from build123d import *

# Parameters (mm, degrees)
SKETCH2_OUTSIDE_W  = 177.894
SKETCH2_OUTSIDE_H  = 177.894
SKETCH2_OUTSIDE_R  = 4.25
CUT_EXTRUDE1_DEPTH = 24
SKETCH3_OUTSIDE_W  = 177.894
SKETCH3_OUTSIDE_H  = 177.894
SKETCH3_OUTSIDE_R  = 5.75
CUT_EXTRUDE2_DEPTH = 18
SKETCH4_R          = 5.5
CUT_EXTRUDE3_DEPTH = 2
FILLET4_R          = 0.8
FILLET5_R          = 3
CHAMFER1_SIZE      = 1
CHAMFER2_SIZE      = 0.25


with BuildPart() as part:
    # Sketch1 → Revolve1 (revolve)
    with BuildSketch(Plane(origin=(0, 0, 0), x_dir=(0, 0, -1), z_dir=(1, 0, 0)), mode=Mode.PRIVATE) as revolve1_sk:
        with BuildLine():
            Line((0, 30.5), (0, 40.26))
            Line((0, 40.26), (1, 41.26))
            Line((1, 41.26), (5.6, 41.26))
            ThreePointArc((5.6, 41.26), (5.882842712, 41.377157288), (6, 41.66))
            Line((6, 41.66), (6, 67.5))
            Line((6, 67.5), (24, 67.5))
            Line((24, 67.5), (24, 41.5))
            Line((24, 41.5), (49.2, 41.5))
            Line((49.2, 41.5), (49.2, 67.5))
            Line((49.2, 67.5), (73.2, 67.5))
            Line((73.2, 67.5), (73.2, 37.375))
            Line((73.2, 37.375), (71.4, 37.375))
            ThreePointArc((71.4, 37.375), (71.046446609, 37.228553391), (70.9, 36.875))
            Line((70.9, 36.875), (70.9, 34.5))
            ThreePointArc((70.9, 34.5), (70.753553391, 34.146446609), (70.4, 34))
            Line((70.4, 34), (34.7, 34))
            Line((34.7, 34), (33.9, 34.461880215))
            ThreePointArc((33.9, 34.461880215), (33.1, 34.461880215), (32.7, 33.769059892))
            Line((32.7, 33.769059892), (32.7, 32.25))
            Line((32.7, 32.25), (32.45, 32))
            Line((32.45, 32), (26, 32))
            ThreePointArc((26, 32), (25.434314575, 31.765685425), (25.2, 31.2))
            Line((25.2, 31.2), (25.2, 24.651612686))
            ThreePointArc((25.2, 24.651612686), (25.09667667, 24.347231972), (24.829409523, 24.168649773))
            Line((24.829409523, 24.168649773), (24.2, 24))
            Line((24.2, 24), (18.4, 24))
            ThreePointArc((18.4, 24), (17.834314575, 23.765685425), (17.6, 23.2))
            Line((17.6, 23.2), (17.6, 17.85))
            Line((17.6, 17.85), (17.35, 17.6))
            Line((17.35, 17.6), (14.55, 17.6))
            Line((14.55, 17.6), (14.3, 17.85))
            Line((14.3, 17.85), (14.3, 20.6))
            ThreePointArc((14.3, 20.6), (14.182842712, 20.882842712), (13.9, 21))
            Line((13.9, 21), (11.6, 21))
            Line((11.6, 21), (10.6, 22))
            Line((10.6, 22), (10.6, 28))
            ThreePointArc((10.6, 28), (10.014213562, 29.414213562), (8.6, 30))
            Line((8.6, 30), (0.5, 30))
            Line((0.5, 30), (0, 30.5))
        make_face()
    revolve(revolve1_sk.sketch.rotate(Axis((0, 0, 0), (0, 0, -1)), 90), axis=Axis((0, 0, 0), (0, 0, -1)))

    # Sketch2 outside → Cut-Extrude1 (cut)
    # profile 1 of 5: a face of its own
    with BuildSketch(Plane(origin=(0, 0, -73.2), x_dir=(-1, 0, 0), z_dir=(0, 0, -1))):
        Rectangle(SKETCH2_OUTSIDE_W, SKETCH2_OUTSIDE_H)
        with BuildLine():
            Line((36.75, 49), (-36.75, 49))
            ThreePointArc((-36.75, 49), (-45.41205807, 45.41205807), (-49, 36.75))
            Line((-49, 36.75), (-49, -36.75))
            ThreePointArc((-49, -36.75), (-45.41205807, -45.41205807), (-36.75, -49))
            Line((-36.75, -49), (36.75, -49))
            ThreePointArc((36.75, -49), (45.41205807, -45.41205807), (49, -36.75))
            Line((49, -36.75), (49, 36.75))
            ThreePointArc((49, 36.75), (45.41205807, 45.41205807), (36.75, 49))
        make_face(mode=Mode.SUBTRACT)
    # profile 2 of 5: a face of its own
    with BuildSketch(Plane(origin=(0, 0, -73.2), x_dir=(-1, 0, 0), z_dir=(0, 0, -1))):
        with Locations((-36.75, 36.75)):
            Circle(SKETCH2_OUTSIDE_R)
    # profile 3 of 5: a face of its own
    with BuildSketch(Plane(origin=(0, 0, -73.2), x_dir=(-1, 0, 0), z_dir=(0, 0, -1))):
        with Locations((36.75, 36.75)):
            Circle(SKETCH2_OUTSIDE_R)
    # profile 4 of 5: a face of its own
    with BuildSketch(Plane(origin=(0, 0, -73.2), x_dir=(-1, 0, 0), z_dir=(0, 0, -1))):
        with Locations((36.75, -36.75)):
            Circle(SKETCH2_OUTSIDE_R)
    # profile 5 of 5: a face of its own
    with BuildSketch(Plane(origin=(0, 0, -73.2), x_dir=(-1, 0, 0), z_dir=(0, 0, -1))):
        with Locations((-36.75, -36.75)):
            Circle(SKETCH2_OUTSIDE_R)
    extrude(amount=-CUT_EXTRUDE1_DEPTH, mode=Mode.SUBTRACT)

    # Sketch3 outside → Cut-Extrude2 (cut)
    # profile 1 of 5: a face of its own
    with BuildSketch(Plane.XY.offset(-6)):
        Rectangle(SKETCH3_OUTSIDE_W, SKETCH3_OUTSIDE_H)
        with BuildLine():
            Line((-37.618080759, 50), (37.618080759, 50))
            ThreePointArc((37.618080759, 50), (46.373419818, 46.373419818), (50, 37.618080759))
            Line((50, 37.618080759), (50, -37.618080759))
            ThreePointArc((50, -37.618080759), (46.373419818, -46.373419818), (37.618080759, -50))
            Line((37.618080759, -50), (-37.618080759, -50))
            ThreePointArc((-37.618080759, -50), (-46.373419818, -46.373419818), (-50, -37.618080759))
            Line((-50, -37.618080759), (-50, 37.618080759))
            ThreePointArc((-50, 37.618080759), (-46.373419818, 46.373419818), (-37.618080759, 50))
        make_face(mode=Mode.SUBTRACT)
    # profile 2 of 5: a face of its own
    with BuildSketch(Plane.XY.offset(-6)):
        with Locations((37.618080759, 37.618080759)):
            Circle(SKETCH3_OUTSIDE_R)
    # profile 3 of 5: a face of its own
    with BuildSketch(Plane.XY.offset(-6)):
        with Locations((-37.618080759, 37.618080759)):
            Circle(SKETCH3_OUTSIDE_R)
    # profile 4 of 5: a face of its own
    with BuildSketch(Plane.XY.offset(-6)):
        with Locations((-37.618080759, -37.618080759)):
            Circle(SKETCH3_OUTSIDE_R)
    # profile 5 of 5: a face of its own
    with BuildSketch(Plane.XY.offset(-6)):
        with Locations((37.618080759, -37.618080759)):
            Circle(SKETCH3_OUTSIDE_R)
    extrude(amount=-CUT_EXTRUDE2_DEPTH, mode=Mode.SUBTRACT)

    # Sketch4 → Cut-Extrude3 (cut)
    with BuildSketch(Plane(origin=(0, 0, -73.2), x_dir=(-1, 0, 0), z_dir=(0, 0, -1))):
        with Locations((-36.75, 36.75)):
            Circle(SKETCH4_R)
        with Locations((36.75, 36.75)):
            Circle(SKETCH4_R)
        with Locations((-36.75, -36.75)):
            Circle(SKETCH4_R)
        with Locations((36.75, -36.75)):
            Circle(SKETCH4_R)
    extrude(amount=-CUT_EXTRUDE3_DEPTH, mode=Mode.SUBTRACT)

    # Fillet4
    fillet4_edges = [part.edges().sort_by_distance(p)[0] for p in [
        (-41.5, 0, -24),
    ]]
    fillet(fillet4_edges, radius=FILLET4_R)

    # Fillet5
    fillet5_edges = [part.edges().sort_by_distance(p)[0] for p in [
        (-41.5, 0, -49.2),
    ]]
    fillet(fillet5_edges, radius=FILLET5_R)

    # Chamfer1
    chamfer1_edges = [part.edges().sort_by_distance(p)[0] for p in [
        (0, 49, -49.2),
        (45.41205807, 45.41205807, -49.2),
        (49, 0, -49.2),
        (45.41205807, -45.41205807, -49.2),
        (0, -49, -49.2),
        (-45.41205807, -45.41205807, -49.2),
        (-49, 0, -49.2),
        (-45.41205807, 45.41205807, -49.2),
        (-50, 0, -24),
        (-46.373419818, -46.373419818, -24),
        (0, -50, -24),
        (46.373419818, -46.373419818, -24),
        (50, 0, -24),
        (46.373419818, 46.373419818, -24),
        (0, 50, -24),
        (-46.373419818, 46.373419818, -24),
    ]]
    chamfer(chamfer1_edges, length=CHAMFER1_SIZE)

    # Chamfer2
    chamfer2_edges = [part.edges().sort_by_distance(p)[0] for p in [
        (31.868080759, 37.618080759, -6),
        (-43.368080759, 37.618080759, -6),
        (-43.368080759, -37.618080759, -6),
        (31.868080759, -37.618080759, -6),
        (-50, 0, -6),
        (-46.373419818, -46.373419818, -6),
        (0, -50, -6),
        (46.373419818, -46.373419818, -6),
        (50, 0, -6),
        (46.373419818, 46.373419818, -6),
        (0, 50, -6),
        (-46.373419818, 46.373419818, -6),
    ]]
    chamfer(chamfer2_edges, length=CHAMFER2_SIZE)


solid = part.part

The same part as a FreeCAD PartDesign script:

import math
import FreeCAD as App
import Part
import Sketcher

V = App.Vector
Q = App.Units.Quantity


def edges_at(feature, points):
    """Names of the edges that pass closest to the given points."""
    edges = feature.Shape.Edges
    near = lambda p: min(range(len(edges)), key=lambda i: edges[i].distToShape(Part.Vertex(*p))[0])
    return sorted({f"Edge{near(p) + 1}" for p in points})


def add_polygon(sketch, points):
    """Adds a closed chain of lines whose ends are joined by coincident constraints."""
    first, n = sketch.GeometryCount, len(points)
    for a, b in zip(points, points[1:] + points[:1]):
        sketch.addGeometry(Part.LineSegment(App.Vector(*a, 0), App.Vector(*b, 0)), False)
    for i in range(n):
        sketch.addConstraint(Sketcher.Constraint("Coincident", first + i, 2, first + (i + 1) % n, 1))

doc = App.newDocument("Part")
body = doc.addObject("PartDesign::Body", "Body")

# Sketch on YZ plane
sketch1 = body.newObject("Sketcher::SketchObject", "Sketch")
sketch1.AttachmentSupport = (doc.getObject("YZ_Plane"), [""])
sketch1.MapMode = "FlatFace"
sketch1.addGeometry(Part.LineSegment(V(40.26, 0, 0), V(30.5, 0, 0)), False)
sketch1.addGeometry(Part.LineSegment(V(30.5, 0, 0), V(30, -0.5, 0)), False)
sketch1.addGeometry(Part.LineSegment(V(30, -0.5, 0), V(30, -8.6, 0)), False)
sketch1.addGeometry(Part.ArcOfCircle(Part.Circle(V(28, -8.6, 0), V(0, 0, 1), 2), math.radians(-90), math.radians(0)), False)
sketch1.addGeometry(Part.LineSegment(V(28, -10.6, 0), V(22, -10.6, 0)), False)
sketch1.addGeometry(Part.LineSegment(V(22, -10.6, 0), V(21, -11.6, 0)), False)
sketch1.addGeometry(Part.LineSegment(V(21, -11.6, 0), V(21, -13.9, 0)), False)
sketch1.addGeometry(Part.ArcOfCircle(Part.Circle(V(20.6, -13.9, 0), V(0, 0, 1), 0.4), math.radians(-90), math.radians(0)), False)
sketch1.addGeometry(Part.LineSegment(V(20.6, -14.3, 0), V(17.85, -14.3, 0)), False)
sketch1.addGeometry(Part.LineSegment(V(17.85, -14.3, 0), V(17.6, -14.55, 0)), False)
sketch1.addGeometry(Part.LineSegment(V(17.6, -14.55, 0), V(17.6, -17.35, 0)), False)
sketch1.addGeometry(Part.LineSegment(V(17.6, -17.35, 0), V(17.85, -17.6, 0)), False)
sketch1.addGeometry(Part.LineSegment(V(17.85, -17.6, 0), V(23.2, -17.6, 0)), False)
sketch1.addGeometry(Part.ArcOfCircle(Part.Circle(V(23.2, -18.4, 0), V(0, 0, 1), 0.8), math.radians(0), math.radians(90)), False)
sketch1.addGeometry(Part.LineSegment(V(24, -18.4, 0), V(24, -24.2, 0)), False)
sketch1.addGeometry(Part.LineSegment(V(24, -24.2, 0), V(24.16865, -24.82941, 0)), False)
sketch1.addGeometry(Part.ArcOfCircle(Part.Circle(V(24.651613, -24.7, 0), V(0, 0, 1), 0.5), math.radians(-165), math.radians(-90)), False)
sketch1.addGeometry(Part.LineSegment(V(24.651613, -25.2, 0), V(31.2, -25.2, 0)), False)
sketch1.addGeometry(Part.ArcOfCircle(Part.Circle(V(31.2, -26, 0), V(0, 0, 1), 0.8), math.radians(0), math.radians(90)), False)
sketch1.addGeometry(Part.LineSegment(V(32, -26, 0), V(32, -32.45, 0)), False)
sketch1.addGeometry(Part.LineSegment(V(32, -32.45, 0), V(32.25, -32.7, 0)), False)
sketch1.addGeometry(Part.LineSegment(V(32.25, -32.7, 0), V(33.76906, -32.7, 0)), False)
sketch1.addGeometry(Part.ArcOfCircle(Part.Circle(V(33.76906, -33.5, 0), V(0, 0, 1), 0.8), math.radians(-30), math.radians(90)), False)
sketch1.addGeometry(Part.LineSegment(V(34.46188, -33.9, 0), V(34, -34.7, 0)), False)
sketch1.addGeometry(Part.LineSegment(V(34, -34.7, 0), V(34, -70.4, 0)), False)
sketch1.addGeometry(Part.ArcOfCircle(Part.Circle(V(34.5, -70.4, 0), V(0, 0, 1), 0.5), math.radians(180), math.radians(270)), False)
sketch1.addGeometry(Part.LineSegment(V(34.5, -70.9, 0), V(36.875, -70.9, 0)), False)
sketch1.addGeometry(Part.ArcOfCircle(Part.Circle(V(36.875, -71.4, 0), V(0, 0, 1), 0.5), math.radians(0), math.radians(90)), False)
sketch1.addGeometry(Part.LineSegment(V(37.375, -71.4, 0), V(37.375, -73.2, 0)), False)
sketch1.addGeometry(Part.LineSegment(V(37.375, -73.2, 0), V(67.5, -73.2, 0)), False)
sketch1.addGeometry(Part.LineSegment(V(67.5, -73.2, 0), V(67.5, -49.2, 0)), False)
sketch1.addGeometry(Part.LineSegment(V(67.5, -49.2, 0), V(41.5, -49.2, 0)), False)
sketch1.addGeometry(Part.LineSegment(V(41.5, -49.2, 0), V(41.5, -24, 0)), False)
sketch1.addGeometry(Part.LineSegment(V(41.5, -24, 0), V(67.5, -24, 0)), False)
sketch1.addGeometry(Part.LineSegment(V(67.5, -24, 0), V(67.5, -6, 0)), False)
sketch1.addGeometry(Part.LineSegment(V(67.5, -6, 0), V(41.66, -6, 0)), False)
sketch1.addGeometry(Part.ArcOfCircle(Part.Circle(V(41.66, -5.6, 0), V(0, 0, 1), 0.4), math.radians(-180), math.radians(-90)), False)
sketch1.addGeometry(Part.LineSegment(V(41.26, -5.6, 0), V(41.26, -1, 0)), False)
sketch1.addGeometry(Part.LineSegment(V(41.26, -1, 0), V(40.26, 0, 0)), False)
sketch1.addConstraint(Sketcher.Constraint("Coincident", 0, 2, 1, 1))
sketch1.addConstraint(Sketcher.Constraint("Coincident", 1, 2, 2, 1))
sketch1.addConstraint(Sketcher.Constraint("Tangent", 2, 2, 3, 2))
sketch1.addConstraint(Sketcher.Constraint("Tangent", 3, 1, 4, 1))
sketch1.addConstraint(Sketcher.Constraint("Coincident", 4, 2, 5, 1))
sketch1.addConstraint(Sketcher.Constraint("Coincident", 5, 2, 6, 1))
sketch1.addConstraint(Sketcher.Constraint("Tangent", 6, 2, 7, 2))
sketch1.addConstraint(Sketcher.Constraint("Tangent", 7, 1, 8, 1))
sketch1.addConstraint(Sketcher.Constraint("Coincident", 8, 2, 9, 1))
sketch1.addConstraint(Sketcher.Constraint("Coincident", 9, 2, 10, 1))
sketch1.addConstraint(Sketcher.Constraint("Coincident", 10, 2, 11, 1))
sketch1.addConstraint(Sketcher.Constraint("Coincident", 11, 2, 12, 1))
sketch1.addConstraint(Sketcher.Constraint("Tangent", 12, 2, 13, 2))
sketch1.addConstraint(Sketcher.Constraint("Tangent", 13, 1, 14, 1))
sketch1.addConstraint(Sketcher.Constraint("Coincident", 14, 2, 15, 1))
sketch1.addConstraint(Sketcher.Constraint("Tangent", 15, 2, 16, 1))
sketch1.addConstraint(Sketcher.Constraint("Tangent", 16, 2, 17, 1))
sketch1.addConstraint(Sketcher.Constraint("Tangent", 17, 2, 18, 2))
sketch1.addConstraint(Sketcher.Constraint("Tangent", 18, 1, 19, 1))
sketch1.addConstraint(Sketcher.Constraint("Coincident", 19, 2, 20, 1))
sketch1.addConstraint(Sketcher.Constraint("Coincident", 20, 2, 21, 1))
sketch1.addConstraint(Sketcher.Constraint("Tangent", 21, 2, 22, 2))
sketch1.addConstraint(Sketcher.Constraint("Tangent", 22, 1, 23, 1))
sketch1.addConstraint(Sketcher.Constraint("Coincident", 23, 2, 24, 1))
sketch1.addConstraint(Sketcher.Constraint("Tangent", 24, 2, 25, 1))
sketch1.addConstraint(Sketcher.Constraint("Tangent", 25, 2, 26, 1))
sketch1.addConstraint(Sketcher.Constraint("Tangent", 26, 2, 27, 2))
sketch1.addConstraint(Sketcher.Constraint("Tangent", 27, 1, 28, 1))
sketch1.addConstraint(Sketcher.Constraint("Coincident", 28, 2, 29, 1))
sketch1.addConstraint(Sketcher.Constraint("Coincident", 29, 2, 30, 1))
sketch1.addConstraint(Sketcher.Constraint("Coincident", 30, 2, 31, 1))
sketch1.addConstraint(Sketcher.Constraint("Coincident", 31, 2, 32, 1))
sketch1.addConstraint(Sketcher.Constraint("Coincident", 32, 2, 33, 1))
sketch1.addConstraint(Sketcher.Constraint("Coincident", 33, 2, 34, 1))
sketch1.addConstraint(Sketcher.Constraint("Coincident", 34, 2, 35, 1))
sketch1.addConstraint(Sketcher.Constraint("Tangent", 35, 2, 36, 2))
sketch1.addConstraint(Sketcher.Constraint("Tangent", 36, 1, 37, 1))
sketch1.addConstraint(Sketcher.Constraint("Coincident", 37, 2, 38, 1))
sketch1.addConstraint(Sketcher.Constraint("Coincident", 38, 2, 0, 1))
sketch1.addConstraint(Sketcher.Constraint("Horizontal", 0))
sketch1.addConstraint(Sketcher.Constraint("Vertical", 2))
sketch1.addConstraint(Sketcher.Constraint("Horizontal", 4))
sketch1.addConstraint(Sketcher.Constraint("Vertical", 6))
sketch1.addConstraint(Sketcher.Constraint("Horizontal", 8))
sketch1.addConstraint(Sketcher.Constraint("Vertical", 10))
sketch1.addConstraint(Sketcher.Constraint("Horizontal", 12))
sketch1.addConstraint(Sketcher.Constraint("Vertical", 14))
sketch1.addConstraint(Sketcher.Constraint("Horizontal", 17))
sketch1.addConstraint(Sketcher.Constraint("Vertical", 19))
sketch1.addConstraint(Sketcher.Constraint("Horizontal", 21))
sketch1.addConstraint(Sketcher.Constraint("Vertical", 24))
sketch1.addConstraint(Sketcher.Constraint("Horizontal", 26))
sketch1.addConstraint(Sketcher.Constraint("Vertical", 28))
sketch1.addConstraint(Sketcher.Constraint("Horizontal", 29))
sketch1.addConstraint(Sketcher.Constraint("Vertical", 30))
sketch1.addConstraint(Sketcher.Constraint("Horizontal", 31))
sketch1.addConstraint(Sketcher.Constraint("Vertical", 32))
sketch1.addConstraint(Sketcher.Constraint("Horizontal", 33))
sketch1.addConstraint(Sketcher.Constraint("Vertical", 34))
sketch1.addConstraint(Sketcher.Constraint("Horizontal", 35))
sketch1.addConstraint(Sketcher.Constraint("Vertical", 37))
sketch1.addConstraint(Sketcher.Constraint("Equal", 13, 18))
sketch1.addConstraint(Sketcher.Constraint("Equal", 18, 22))
sketch1.addConstraint(Sketcher.Constraint("Equal", 16, 25))
sketch1.addConstraint(Sketcher.Constraint("Equal", 25, 27))
sketch1.addConstraint(Sketcher.Constraint("Equal", 7, 36))
sketch1.addConstraint(Sketcher.Constraint("PointOnObject", 0, 2, -1))
sketch1.addConstraint(Sketcher.Constraint("Parallel", 1, 5))
sketch1.addConstraint(Sketcher.Constraint("Parallel", 5, 9))
sketch1.addConstraint(Sketcher.Constraint("Perpendicular", 9, 11))
sketch1.addConstraint(Sketcher.Constraint("Parallel", 11, 20))
sketch1.addConstraint(Sketcher.Constraint("Parallel", 20, 38))
sketch1.addConstraint(Sketcher.Constraint("Vertical", 8, 2, 11, 2))
sketch1.addConstraint(Sketcher.Constraint("Vertical", 30, 2, 33, 2))
sketch1.addConstraint(Sketcher.Constraint("Equal", 9, 11))
sketch1.addConstraint(Sketcher.Constraint("Equal", 11, 20))
sketch1.addConstraint(Sketcher.Constraint("Equal", 5, 38))
sketch1.addConstraint(Sketcher.Constraint("Radius", 3, 2.0))
sketch1.addConstraint(Sketcher.Constraint("Radius", 7, 0.4))
sketch1.addConstraint(Sketcher.Constraint("Radius", 13, 0.8))
sketch1.addConstraint(Sketcher.Constraint("Radius", 16, 0.5))
sketch1.addConstraint(Sketcher.Constraint("DistanceX", 4, 2, 4, 1, 6.0))
sketch1.addConstraint(Sketcher.Constraint("DistanceX", 31, 2, 31, 1, 26.0))
sketch1.addConstraint(Sketcher.Constraint("DistanceY", 30, 1, 30, 2, 24.0))
sketch1.addConstraint(Sketcher.Constraint("DistanceY", 34, 1, 34, 2, 18.0))
sketch1.addConstraint(Sketcher.Constraint("Angle", 15, Q("-75 deg")))
sketch1.addConstraint(Sketcher.Constraint("Angle", 23, Q("-120 deg")))
sketch1.addConstraint(Sketcher.Constraint("DistanceY", 2, 2, 2, 1, 8.1))
sketch1.addConstraint(Sketcher.Constraint("DistanceY", 6, 2, 6, 1, 2.3))
sketch1.addConstraint(Sketcher.Constraint("DistanceY", 10, 2, 10, 1, 2.8))
sketch1.addConstraint(Sketcher.Constraint("DistanceY", 14, 2, 14, 1, 5.8))
sketch1.addConstraint(Sketcher.Constraint("DistanceY", 24, 2, 24, 1, 35.7))
sketch1.addConstraint(Sketcher.Constraint("DistanceY", 28, 2, 28, 1, 1.8))
sketch1.addConstraint(Sketcher.Constraint("DistanceY", 32, 1, 32, 2, 25.2))
sketch1.addConstraint(Sketcher.Constraint("DistanceY", 37, 1, 37, 2, 4.6))
sketch1.addConstraint(Sketcher.Constraint("DistanceX", -1, 1, 3, 3, 28.0))
sketch1.addConstraint(Sketcher.Constraint("DistanceY", 18, 3, -1, 1, 26.0))
sketch1.addConstraint(Sketcher.Constraint("DistanceX", -1, 1, 5, 2, 21.0))
sketch1.addConstraint(Sketcher.Constraint("DistanceX", -1, 1, 13, 1, 24.0))
sketch1.addConstraint(Sketcher.Constraint("DistanceX", -1, 1, 18, 1, 32.0))
sketch1.addConstraint(Sketcher.Constraint("DistanceX", -1, 1, 23, 2, 34.0))
sketch1.addConstraint(Sketcher.Constraint("DistanceY", 25, 3, 13, 3, 52.0))
sketch1.addConstraint(Sketcher.Constraint("DistanceY", 3, 3, 36, 3, 3.0))
sketch1.addConstraint(Sketcher.Constraint("DistanceX", 9, 2, 7, 1, 3.0))
sketch1.addConstraint(Sketcher.Constraint("DistanceY", 23, 2, 21, 2, 2.0))
sketch1.addConstraint(Sketcher.Constraint("DistanceX", 25, 2, 29, 2, 33.0))
sketch1.addConstraint(Sketcher.Constraint("DistanceX", 0, 2, 0, 1, 9.76))
sketch1.addConstraint(Sketcher.Constraint("DistanceX", 26, 1, 26, 2, 2.375))
revolution = body.newObject("PartDesign::Revolution", "Revolution")
revolution.Profile = sketch1
revolution.ReferenceAxis = (sketch1, ["V_Axis"])
revolution.Angle = 360

# Sketch on XY plane
sketch2 = body.newObject("Sketcher::SketchObject", "Sketch001")
sketch2.AttachmentSupport = (doc.getObject("XY_Plane"), [""])
sketch2.MapMode = "FlatFace"
sketch2.AttachmentOffset = App.Placement(V(0, 0, -73.2), App.Rotation())
add_polygon(sketch2, [(88.947, 88.947), (88.947, -88.947), (-88.947, -88.947), (-88.947, 88.947)])  # lines 0-3
sketch2.addGeometry(Part.LineSegment(V(36.75, 49, 0), V(-36.75, 49, 0)), False)  # 4
sketch2.addGeometry(Part.ArcOfCircle(Part.Circle(V(-36.75, 36.75, 0), V(0, 0, 1), 12.25), math.radians(90), math.radians(180)), False)  # 5
sketch2.addGeometry(Part.LineSegment(V(-49, 36.75, 0), V(-49, -36.75, 0)), False)  # 6
sketch2.addGeometry(Part.ArcOfCircle(Part.Circle(V(-36.75, -36.75, 0), V(0, 0, 1), 12.25), math.radians(180), math.radians(270)), False)  # 7
sketch2.addGeometry(Part.LineSegment(V(-36.75, -49, 0), V(36.75, -49, 0)), False)  # 8
sketch2.addGeometry(Part.ArcOfCircle(Part.Circle(V(36.75, -36.75, 0), V(0, 0, 1), 12.25), math.radians(-90), math.radians(0)), False)  # 9
sketch2.addGeometry(Part.LineSegment(V(49, -36.75, 0), V(49, 36.75, 0)), False)  # 10
sketch2.addGeometry(Part.ArcOfCircle(Part.Circle(V(36.75, 36.75, 0), V(0, 0, 1), 12.25), math.radians(0), math.radians(90)), False)  # 11
sketch2.addGeometry(Part.Circle(V(36.75, 36.75, 0), V(0, 0, 1), 4.25), False)  # 12
sketch2.addGeometry(Part.Circle(V(-36.75, 36.75, 0), V(0, 0, 1), 4.25), False)  # 13
sketch2.addGeometry(Part.Circle(V(-36.75, -36.75, 0), V(0, 0, 1), 4.25), False)  # 14
sketch2.addGeometry(Part.Circle(V(36.75, -36.75, 0), V(0, 0, 1), 4.25), False)  # 15
sketch2.addConstraint(Sketcher.Constraint("Tangent", 4, 2, 5, 1))
sketch2.addConstraint(Sketcher.Constraint("Tangent", 5, 2, 6, 1))
sketch2.addConstraint(Sketcher.Constraint("Tangent", 6, 2, 7, 1))
sketch2.addConstraint(Sketcher.Constraint("Tangent", 7, 2, 8, 1))
sketch2.addConstraint(Sketcher.Constraint("Tangent", 8, 2, 9, 1))
sketch2.addConstraint(Sketcher.Constraint("Tangent", 9, 2, 10, 1))
sketch2.addConstraint(Sketcher.Constraint("Tangent", 10, 2, 11, 1))
sketch2.addConstraint(Sketcher.Constraint("Tangent", 11, 2, 4, 1))
sketch2.addConstraint(Sketcher.Constraint("Vertical", 0))
sketch2.addConstraint(Sketcher.Constraint("Horizontal", 1))
sketch2.addConstraint(Sketcher.Constraint("Vertical", 2))
sketch2.addConstraint(Sketcher.Constraint("Horizontal", 3))
sketch2.addConstraint(Sketcher.Constraint("Horizontal", 4))
sketch2.addConstraint(Sketcher.Constraint("Vertical", 6))
sketch2.addConstraint(Sketcher.Constraint("Horizontal", 8))
sketch2.addConstraint(Sketcher.Constraint("Vertical", 10))
sketch2.addConstraint(Sketcher.Constraint("Coincident", 12, 3, 11, 3))
sketch2.addConstraint(Sketcher.Constraint("Coincident", 13, 3, 5, 3))
sketch2.addConstraint(Sketcher.Constraint("Coincident", 14, 3, 7, 3))
sketch2.addConstraint(Sketcher.Constraint("Coincident", 15, 3, 9, 3))
sketch2.addConstraint(Sketcher.Constraint("Equal", 5, 7))
sketch2.addConstraint(Sketcher.Constraint("Equal", 7, 9))
sketch2.addConstraint(Sketcher.Constraint("Equal", 9, 11))
sketch2.addConstraint(Sketcher.Constraint("Equal", 12, 13))
sketch2.addConstraint(Sketcher.Constraint("Equal", 13, 14))
sketch2.addConstraint(Sketcher.Constraint("Equal", 14, 15))
sketch2.addConstraint(Sketcher.Constraint("Symmetric", 5, 3, 9, 3, -1, 1))
sketch2.addConstraint(Sketcher.Constraint("Symmetric", 0, 2, 2, 2, -1, 1))
sketch2.addConstraint(Sketcher.Constraint("Equal", 3, 0))
sketch2.addConstraint(Sketcher.Constraint("Equal", 8, 6))
sketch2.addConstraint(Sketcher.Constraint("Diameter", 12, 8.5))
sketch2.addConstraint(Sketcher.Constraint("Radius", 5, 12.25))
sketch2.addConstraint(Sketcher.Constraint("DistanceX", 4, 2, 4, 1, 73.5))
sketch2.addConstraint(Sketcher.Constraint("DistanceX", 1, 2, 1, 1, 177.894))
pocket1 = body.newObject("PartDesign::Pocket", "Pocket")
pocket1.Profile = sketch2
pocket1.Length = 24
pocket1.Reversed = True

# Sketch on XY plane
sketch3 = body.newObject("Sketcher::SketchObject", "Sketch002")
sketch3.AttachmentSupport = (doc.getObject("XY_Plane"), [""])
sketch3.MapMode = "FlatFace"
sketch3.AttachmentOffset = App.Placement(V(0, 0, -6), App.Rotation())
add_polygon(sketch3, [(-88.947, 88.947), (-88.947, -88.947), (88.947, -88.947), (88.947, 88.947)])  # lines 0-3
sketch3.addGeometry(Part.ArcOfCircle(Part.Circle(V(-37.618081, 37.618081, 0), V(0, 0, 1), 12.381919), math.radians(90), math.radians(180)), False)  # 4
sketch3.addGeometry(Part.LineSegment(V(-37.618081, 50, 0), V(37.618081, 50, 0)), False)  # 5
sketch3.addGeometry(Part.ArcOfCircle(Part.Circle(V(37.618081, 37.618081, 0), V(0, 0, 1), 12.381919), math.radians(0), math.radians(90)), False)  # 6
sketch3.addGeometry(Part.LineSegment(V(50, 37.618081, 0), V(50, -37.618081, 0)), False)  # 7
sketch3.addGeometry(Part.ArcOfCircle(Part.Circle(V(37.618081, -37.618081, 0), V(0, 0, 1), 12.381919), math.radians(-90), math.radians(0)), False)  # 8
sketch3.addGeometry(Part.LineSegment(V(37.618081, -50, 0), V(-37.618081, -50, 0)), False)  # 9
sketch3.addGeometry(Part.ArcOfCircle(Part.Circle(V(-37.618081, -37.618081, 0), V(0, 0, 1), 12.381919), math.radians(-180), math.radians(-90)), False)  # 10
sketch3.addGeometry(Part.LineSegment(V(-50, -37.618081, 0), V(-50, 37.618081, 0)), False)  # 11
sketch3.addGeometry(Part.Circle(V(37.618081, 37.618081, 0), V(0, 0, 1), 5.75), False)  # 12
sketch3.addGeometry(Part.Circle(V(-37.618081, 37.618081, 0), V(0, 0, 1), 5.75), False)  # 13
sketch3.addGeometry(Part.Circle(V(-37.618081, -37.618081, 0), V(0, 0, 1), 5.75), False)  # 14
sketch3.addGeometry(Part.Circle(V(37.618081, -37.618081, 0), V(0, 0, 1), 5.75), False)  # 15
sketch3.addConstraint(Sketcher.Constraint("Tangent", 4, 1, 5, 1))
sketch3.addConstraint(Sketcher.Constraint("Tangent", 5, 2, 6, 2))
sketch3.addConstraint(Sketcher.Constraint("Tangent", 6, 1, 7, 1))
sketch3.addConstraint(Sketcher.Constraint("Tangent", 7, 2, 8, 2))
sketch3.addConstraint(Sketcher.Constraint("Tangent", 8, 1, 9, 1))
sketch3.addConstraint(Sketcher.Constraint("Tangent", 9, 2, 10, 2))
sketch3.addConstraint(Sketcher.Constraint("Tangent", 10, 1, 11, 1))
sketch3.addConstraint(Sketcher.Constraint("Tangent", 11, 2, 4, 2))
sketch3.addConstraint(Sketcher.Constraint("Vertical", 0))
sketch3.addConstraint(Sketcher.Constraint("Horizontal", 1))
sketch3.addConstraint(Sketcher.Constraint("Vertical", 2))
sketch3.addConstraint(Sketcher.Constraint("Horizontal", 3))
sketch3.addConstraint(Sketcher.Constraint("Horizontal", 5))
sketch3.addConstraint(Sketcher.Constraint("Vertical", 7))
sketch3.addConstraint(Sketcher.Constraint("Horizontal", 9))
sketch3.addConstraint(Sketcher.Constraint("Vertical", 11))
sketch3.addConstraint(Sketcher.Constraint("Coincident", 12, 3, 6, 3))
sketch3.addConstraint(Sketcher.Constraint("Coincident", 13, 3, 4, 3))
sketch3.addConstraint(Sketcher.Constraint("Coincident", 14, 3, 10, 3))
sketch3.addConstraint(Sketcher.Constraint("Coincident", 15, 3, 8, 3))
sketch3.addConstraint(Sketcher.Constraint("Equal", 4, 6))
sketch3.addConstraint(Sketcher.Constraint("Equal", 6, 8))
sketch3.addConstraint(Sketcher.Constraint("Equal", 8, 10))
sketch3.addConstraint(Sketcher.Constraint("Equal", 12, 13))
sketch3.addConstraint(Sketcher.Constraint("Equal", 13, 14))
sketch3.addConstraint(Sketcher.Constraint("Equal", 14, 15))
sketch3.addConstraint(Sketcher.Constraint("Symmetric", 4, 3, 8, 3, -1, 1))
sketch3.addConstraint(Sketcher.Constraint("Symmetric", 0, 2, 2, 2, -1, 1))
sketch3.addConstraint(Sketcher.Constraint("Equal", 3, 0))
sketch3.addConstraint(Sketcher.Constraint("Equal", 9, 7))
sketch3.addConstraint(Sketcher.Constraint("Diameter", 12, 11.5))
sketch3.addConstraint(Sketcher.Constraint("DistanceY", -1, 1, 4, 1, 50.0))
sketch3.addConstraint(Sketcher.Constraint("DistanceX", 1, 1, 1, 2, 177.894))
sketch3.addConstraint(Sketcher.Constraint("Radius", 4, 12.381919))
pocket2 = body.newObject("PartDesign::Pocket", "Pocket001")
pocket2.Profile = sketch3
pocket2.Length = 18

# Sketch on XY plane
sketch4 = body.newObject("Sketcher::SketchObject", "Sketch003")
sketch4.AttachmentSupport = (doc.getObject("XY_Plane"), [""])
sketch4.MapMode = "FlatFace"
sketch4.AttachmentOffset = App.Placement(V(0, 0, -73.2), App.Rotation())
sketch4.addGeometry(Part.Circle(V(36.75, 36.75, 0), V(0, 0, 1), 5.5), False)
sketch4.addGeometry(Part.Circle(V(-36.75, 36.75, 0), V(0, 0, 1), 5.5), False)
sketch4.addGeometry(Part.Circle(V(36.75, -36.75, 0), V(0, 0, 1), 5.5), False)
sketch4.addGeometry(Part.Circle(V(-36.75, -36.75, 0), V(0, 0, 1), 5.5), False)
sketch4.addConstraint(Sketcher.Constraint("Equal", 0, 1))
sketch4.addConstraint(Sketcher.Constraint("Equal", 1, 2))
sketch4.addConstraint(Sketcher.Constraint("Equal", 2, 3))
sketch4.addConstraint(Sketcher.Constraint("Symmetric", 1, 3, 2, 3, -1, 1))
sketch4.addConstraint(Sketcher.Constraint("Symmetric", 0, 3, 3, 3, -1, 1))
sketch4.addConstraint(Sketcher.Constraint("Symmetric", 0, 3, 1, 3, -2))
sketch4.addConstraint(Sketcher.Constraint("Diameter", 0, 11.0))
sketch4.addConstraint(Sketcher.Constraint("DistanceX", 1, 3, 0, 3, 73.5))
sketch4.addConstraint(Sketcher.Constraint("DistanceY", 2, 3, 0, 3, 73.5))
pocket3 = body.newObject("PartDesign::Pocket", "Pocket002")
pocket3.Profile = sketch4
pocket3.Length = 2
pocket3.Reversed = True
doc.recompute()

fillet = body.newObject("PartDesign::Fillet", "Fillet")
fillet.Base = (pocket3, edges_at(pocket3, [(-41.5, 0, -24)]))
fillet.Radius = 0.8
doc.recompute()

fillet2 = body.newObject("PartDesign::Fillet", "Fillet001")
fillet2.Base = (fillet, edges_at(fillet, [(-41.5, 0, -49.2)]))
fillet2.Radius = 3
doc.recompute()

chamfer = body.newObject("PartDesign::Chamfer", "Chamfer")
chamfer.Base = (fillet2, edges_at(fillet2, [
    (0, 49, -49.2),
    (45.412, 45.412, -49.2),
    (49, 0, -49.2),
    (45.412, -45.412, -49.2),
    (0, -49, -49.2),
    (-45.412, -45.412, -49.2),
    (-49, 0, -49.2),
    (-45.412, 45.412, -49.2),
    (-50, 0, -24),
    (-46.373, -46.373, -24),
    (0, -50, -24),
    (46.373, -46.373, -24),
    (50, 0, -24),
    (46.373, 46.373, -24),
    (0, 50, -24),
    (-46.373, 46.373, -24),
]))
chamfer.Size = 1
doc.recompute()

chamfer2 = body.newObject("PartDesign::Chamfer", "Chamfer001")
chamfer2.Base = (chamfer, edges_at(chamfer, [
    (31.868, 37.618, -6),
    (-43.368, 37.618, -6),
    (-43.368, -37.618, -6),
    (31.868, -37.618, -6),
    (-50, 0, -6),
    (-46.373, -46.373, -6),
    (0, -50, -6),
    (46.373, -46.373, -6),
    (50, 0, -6),
    (46.373, 46.373, -6),
    (0, 50, -6),
    (-46.373, 46.373, -6),
]))
chamfer2.Size = 0.25

doc.recompute()
